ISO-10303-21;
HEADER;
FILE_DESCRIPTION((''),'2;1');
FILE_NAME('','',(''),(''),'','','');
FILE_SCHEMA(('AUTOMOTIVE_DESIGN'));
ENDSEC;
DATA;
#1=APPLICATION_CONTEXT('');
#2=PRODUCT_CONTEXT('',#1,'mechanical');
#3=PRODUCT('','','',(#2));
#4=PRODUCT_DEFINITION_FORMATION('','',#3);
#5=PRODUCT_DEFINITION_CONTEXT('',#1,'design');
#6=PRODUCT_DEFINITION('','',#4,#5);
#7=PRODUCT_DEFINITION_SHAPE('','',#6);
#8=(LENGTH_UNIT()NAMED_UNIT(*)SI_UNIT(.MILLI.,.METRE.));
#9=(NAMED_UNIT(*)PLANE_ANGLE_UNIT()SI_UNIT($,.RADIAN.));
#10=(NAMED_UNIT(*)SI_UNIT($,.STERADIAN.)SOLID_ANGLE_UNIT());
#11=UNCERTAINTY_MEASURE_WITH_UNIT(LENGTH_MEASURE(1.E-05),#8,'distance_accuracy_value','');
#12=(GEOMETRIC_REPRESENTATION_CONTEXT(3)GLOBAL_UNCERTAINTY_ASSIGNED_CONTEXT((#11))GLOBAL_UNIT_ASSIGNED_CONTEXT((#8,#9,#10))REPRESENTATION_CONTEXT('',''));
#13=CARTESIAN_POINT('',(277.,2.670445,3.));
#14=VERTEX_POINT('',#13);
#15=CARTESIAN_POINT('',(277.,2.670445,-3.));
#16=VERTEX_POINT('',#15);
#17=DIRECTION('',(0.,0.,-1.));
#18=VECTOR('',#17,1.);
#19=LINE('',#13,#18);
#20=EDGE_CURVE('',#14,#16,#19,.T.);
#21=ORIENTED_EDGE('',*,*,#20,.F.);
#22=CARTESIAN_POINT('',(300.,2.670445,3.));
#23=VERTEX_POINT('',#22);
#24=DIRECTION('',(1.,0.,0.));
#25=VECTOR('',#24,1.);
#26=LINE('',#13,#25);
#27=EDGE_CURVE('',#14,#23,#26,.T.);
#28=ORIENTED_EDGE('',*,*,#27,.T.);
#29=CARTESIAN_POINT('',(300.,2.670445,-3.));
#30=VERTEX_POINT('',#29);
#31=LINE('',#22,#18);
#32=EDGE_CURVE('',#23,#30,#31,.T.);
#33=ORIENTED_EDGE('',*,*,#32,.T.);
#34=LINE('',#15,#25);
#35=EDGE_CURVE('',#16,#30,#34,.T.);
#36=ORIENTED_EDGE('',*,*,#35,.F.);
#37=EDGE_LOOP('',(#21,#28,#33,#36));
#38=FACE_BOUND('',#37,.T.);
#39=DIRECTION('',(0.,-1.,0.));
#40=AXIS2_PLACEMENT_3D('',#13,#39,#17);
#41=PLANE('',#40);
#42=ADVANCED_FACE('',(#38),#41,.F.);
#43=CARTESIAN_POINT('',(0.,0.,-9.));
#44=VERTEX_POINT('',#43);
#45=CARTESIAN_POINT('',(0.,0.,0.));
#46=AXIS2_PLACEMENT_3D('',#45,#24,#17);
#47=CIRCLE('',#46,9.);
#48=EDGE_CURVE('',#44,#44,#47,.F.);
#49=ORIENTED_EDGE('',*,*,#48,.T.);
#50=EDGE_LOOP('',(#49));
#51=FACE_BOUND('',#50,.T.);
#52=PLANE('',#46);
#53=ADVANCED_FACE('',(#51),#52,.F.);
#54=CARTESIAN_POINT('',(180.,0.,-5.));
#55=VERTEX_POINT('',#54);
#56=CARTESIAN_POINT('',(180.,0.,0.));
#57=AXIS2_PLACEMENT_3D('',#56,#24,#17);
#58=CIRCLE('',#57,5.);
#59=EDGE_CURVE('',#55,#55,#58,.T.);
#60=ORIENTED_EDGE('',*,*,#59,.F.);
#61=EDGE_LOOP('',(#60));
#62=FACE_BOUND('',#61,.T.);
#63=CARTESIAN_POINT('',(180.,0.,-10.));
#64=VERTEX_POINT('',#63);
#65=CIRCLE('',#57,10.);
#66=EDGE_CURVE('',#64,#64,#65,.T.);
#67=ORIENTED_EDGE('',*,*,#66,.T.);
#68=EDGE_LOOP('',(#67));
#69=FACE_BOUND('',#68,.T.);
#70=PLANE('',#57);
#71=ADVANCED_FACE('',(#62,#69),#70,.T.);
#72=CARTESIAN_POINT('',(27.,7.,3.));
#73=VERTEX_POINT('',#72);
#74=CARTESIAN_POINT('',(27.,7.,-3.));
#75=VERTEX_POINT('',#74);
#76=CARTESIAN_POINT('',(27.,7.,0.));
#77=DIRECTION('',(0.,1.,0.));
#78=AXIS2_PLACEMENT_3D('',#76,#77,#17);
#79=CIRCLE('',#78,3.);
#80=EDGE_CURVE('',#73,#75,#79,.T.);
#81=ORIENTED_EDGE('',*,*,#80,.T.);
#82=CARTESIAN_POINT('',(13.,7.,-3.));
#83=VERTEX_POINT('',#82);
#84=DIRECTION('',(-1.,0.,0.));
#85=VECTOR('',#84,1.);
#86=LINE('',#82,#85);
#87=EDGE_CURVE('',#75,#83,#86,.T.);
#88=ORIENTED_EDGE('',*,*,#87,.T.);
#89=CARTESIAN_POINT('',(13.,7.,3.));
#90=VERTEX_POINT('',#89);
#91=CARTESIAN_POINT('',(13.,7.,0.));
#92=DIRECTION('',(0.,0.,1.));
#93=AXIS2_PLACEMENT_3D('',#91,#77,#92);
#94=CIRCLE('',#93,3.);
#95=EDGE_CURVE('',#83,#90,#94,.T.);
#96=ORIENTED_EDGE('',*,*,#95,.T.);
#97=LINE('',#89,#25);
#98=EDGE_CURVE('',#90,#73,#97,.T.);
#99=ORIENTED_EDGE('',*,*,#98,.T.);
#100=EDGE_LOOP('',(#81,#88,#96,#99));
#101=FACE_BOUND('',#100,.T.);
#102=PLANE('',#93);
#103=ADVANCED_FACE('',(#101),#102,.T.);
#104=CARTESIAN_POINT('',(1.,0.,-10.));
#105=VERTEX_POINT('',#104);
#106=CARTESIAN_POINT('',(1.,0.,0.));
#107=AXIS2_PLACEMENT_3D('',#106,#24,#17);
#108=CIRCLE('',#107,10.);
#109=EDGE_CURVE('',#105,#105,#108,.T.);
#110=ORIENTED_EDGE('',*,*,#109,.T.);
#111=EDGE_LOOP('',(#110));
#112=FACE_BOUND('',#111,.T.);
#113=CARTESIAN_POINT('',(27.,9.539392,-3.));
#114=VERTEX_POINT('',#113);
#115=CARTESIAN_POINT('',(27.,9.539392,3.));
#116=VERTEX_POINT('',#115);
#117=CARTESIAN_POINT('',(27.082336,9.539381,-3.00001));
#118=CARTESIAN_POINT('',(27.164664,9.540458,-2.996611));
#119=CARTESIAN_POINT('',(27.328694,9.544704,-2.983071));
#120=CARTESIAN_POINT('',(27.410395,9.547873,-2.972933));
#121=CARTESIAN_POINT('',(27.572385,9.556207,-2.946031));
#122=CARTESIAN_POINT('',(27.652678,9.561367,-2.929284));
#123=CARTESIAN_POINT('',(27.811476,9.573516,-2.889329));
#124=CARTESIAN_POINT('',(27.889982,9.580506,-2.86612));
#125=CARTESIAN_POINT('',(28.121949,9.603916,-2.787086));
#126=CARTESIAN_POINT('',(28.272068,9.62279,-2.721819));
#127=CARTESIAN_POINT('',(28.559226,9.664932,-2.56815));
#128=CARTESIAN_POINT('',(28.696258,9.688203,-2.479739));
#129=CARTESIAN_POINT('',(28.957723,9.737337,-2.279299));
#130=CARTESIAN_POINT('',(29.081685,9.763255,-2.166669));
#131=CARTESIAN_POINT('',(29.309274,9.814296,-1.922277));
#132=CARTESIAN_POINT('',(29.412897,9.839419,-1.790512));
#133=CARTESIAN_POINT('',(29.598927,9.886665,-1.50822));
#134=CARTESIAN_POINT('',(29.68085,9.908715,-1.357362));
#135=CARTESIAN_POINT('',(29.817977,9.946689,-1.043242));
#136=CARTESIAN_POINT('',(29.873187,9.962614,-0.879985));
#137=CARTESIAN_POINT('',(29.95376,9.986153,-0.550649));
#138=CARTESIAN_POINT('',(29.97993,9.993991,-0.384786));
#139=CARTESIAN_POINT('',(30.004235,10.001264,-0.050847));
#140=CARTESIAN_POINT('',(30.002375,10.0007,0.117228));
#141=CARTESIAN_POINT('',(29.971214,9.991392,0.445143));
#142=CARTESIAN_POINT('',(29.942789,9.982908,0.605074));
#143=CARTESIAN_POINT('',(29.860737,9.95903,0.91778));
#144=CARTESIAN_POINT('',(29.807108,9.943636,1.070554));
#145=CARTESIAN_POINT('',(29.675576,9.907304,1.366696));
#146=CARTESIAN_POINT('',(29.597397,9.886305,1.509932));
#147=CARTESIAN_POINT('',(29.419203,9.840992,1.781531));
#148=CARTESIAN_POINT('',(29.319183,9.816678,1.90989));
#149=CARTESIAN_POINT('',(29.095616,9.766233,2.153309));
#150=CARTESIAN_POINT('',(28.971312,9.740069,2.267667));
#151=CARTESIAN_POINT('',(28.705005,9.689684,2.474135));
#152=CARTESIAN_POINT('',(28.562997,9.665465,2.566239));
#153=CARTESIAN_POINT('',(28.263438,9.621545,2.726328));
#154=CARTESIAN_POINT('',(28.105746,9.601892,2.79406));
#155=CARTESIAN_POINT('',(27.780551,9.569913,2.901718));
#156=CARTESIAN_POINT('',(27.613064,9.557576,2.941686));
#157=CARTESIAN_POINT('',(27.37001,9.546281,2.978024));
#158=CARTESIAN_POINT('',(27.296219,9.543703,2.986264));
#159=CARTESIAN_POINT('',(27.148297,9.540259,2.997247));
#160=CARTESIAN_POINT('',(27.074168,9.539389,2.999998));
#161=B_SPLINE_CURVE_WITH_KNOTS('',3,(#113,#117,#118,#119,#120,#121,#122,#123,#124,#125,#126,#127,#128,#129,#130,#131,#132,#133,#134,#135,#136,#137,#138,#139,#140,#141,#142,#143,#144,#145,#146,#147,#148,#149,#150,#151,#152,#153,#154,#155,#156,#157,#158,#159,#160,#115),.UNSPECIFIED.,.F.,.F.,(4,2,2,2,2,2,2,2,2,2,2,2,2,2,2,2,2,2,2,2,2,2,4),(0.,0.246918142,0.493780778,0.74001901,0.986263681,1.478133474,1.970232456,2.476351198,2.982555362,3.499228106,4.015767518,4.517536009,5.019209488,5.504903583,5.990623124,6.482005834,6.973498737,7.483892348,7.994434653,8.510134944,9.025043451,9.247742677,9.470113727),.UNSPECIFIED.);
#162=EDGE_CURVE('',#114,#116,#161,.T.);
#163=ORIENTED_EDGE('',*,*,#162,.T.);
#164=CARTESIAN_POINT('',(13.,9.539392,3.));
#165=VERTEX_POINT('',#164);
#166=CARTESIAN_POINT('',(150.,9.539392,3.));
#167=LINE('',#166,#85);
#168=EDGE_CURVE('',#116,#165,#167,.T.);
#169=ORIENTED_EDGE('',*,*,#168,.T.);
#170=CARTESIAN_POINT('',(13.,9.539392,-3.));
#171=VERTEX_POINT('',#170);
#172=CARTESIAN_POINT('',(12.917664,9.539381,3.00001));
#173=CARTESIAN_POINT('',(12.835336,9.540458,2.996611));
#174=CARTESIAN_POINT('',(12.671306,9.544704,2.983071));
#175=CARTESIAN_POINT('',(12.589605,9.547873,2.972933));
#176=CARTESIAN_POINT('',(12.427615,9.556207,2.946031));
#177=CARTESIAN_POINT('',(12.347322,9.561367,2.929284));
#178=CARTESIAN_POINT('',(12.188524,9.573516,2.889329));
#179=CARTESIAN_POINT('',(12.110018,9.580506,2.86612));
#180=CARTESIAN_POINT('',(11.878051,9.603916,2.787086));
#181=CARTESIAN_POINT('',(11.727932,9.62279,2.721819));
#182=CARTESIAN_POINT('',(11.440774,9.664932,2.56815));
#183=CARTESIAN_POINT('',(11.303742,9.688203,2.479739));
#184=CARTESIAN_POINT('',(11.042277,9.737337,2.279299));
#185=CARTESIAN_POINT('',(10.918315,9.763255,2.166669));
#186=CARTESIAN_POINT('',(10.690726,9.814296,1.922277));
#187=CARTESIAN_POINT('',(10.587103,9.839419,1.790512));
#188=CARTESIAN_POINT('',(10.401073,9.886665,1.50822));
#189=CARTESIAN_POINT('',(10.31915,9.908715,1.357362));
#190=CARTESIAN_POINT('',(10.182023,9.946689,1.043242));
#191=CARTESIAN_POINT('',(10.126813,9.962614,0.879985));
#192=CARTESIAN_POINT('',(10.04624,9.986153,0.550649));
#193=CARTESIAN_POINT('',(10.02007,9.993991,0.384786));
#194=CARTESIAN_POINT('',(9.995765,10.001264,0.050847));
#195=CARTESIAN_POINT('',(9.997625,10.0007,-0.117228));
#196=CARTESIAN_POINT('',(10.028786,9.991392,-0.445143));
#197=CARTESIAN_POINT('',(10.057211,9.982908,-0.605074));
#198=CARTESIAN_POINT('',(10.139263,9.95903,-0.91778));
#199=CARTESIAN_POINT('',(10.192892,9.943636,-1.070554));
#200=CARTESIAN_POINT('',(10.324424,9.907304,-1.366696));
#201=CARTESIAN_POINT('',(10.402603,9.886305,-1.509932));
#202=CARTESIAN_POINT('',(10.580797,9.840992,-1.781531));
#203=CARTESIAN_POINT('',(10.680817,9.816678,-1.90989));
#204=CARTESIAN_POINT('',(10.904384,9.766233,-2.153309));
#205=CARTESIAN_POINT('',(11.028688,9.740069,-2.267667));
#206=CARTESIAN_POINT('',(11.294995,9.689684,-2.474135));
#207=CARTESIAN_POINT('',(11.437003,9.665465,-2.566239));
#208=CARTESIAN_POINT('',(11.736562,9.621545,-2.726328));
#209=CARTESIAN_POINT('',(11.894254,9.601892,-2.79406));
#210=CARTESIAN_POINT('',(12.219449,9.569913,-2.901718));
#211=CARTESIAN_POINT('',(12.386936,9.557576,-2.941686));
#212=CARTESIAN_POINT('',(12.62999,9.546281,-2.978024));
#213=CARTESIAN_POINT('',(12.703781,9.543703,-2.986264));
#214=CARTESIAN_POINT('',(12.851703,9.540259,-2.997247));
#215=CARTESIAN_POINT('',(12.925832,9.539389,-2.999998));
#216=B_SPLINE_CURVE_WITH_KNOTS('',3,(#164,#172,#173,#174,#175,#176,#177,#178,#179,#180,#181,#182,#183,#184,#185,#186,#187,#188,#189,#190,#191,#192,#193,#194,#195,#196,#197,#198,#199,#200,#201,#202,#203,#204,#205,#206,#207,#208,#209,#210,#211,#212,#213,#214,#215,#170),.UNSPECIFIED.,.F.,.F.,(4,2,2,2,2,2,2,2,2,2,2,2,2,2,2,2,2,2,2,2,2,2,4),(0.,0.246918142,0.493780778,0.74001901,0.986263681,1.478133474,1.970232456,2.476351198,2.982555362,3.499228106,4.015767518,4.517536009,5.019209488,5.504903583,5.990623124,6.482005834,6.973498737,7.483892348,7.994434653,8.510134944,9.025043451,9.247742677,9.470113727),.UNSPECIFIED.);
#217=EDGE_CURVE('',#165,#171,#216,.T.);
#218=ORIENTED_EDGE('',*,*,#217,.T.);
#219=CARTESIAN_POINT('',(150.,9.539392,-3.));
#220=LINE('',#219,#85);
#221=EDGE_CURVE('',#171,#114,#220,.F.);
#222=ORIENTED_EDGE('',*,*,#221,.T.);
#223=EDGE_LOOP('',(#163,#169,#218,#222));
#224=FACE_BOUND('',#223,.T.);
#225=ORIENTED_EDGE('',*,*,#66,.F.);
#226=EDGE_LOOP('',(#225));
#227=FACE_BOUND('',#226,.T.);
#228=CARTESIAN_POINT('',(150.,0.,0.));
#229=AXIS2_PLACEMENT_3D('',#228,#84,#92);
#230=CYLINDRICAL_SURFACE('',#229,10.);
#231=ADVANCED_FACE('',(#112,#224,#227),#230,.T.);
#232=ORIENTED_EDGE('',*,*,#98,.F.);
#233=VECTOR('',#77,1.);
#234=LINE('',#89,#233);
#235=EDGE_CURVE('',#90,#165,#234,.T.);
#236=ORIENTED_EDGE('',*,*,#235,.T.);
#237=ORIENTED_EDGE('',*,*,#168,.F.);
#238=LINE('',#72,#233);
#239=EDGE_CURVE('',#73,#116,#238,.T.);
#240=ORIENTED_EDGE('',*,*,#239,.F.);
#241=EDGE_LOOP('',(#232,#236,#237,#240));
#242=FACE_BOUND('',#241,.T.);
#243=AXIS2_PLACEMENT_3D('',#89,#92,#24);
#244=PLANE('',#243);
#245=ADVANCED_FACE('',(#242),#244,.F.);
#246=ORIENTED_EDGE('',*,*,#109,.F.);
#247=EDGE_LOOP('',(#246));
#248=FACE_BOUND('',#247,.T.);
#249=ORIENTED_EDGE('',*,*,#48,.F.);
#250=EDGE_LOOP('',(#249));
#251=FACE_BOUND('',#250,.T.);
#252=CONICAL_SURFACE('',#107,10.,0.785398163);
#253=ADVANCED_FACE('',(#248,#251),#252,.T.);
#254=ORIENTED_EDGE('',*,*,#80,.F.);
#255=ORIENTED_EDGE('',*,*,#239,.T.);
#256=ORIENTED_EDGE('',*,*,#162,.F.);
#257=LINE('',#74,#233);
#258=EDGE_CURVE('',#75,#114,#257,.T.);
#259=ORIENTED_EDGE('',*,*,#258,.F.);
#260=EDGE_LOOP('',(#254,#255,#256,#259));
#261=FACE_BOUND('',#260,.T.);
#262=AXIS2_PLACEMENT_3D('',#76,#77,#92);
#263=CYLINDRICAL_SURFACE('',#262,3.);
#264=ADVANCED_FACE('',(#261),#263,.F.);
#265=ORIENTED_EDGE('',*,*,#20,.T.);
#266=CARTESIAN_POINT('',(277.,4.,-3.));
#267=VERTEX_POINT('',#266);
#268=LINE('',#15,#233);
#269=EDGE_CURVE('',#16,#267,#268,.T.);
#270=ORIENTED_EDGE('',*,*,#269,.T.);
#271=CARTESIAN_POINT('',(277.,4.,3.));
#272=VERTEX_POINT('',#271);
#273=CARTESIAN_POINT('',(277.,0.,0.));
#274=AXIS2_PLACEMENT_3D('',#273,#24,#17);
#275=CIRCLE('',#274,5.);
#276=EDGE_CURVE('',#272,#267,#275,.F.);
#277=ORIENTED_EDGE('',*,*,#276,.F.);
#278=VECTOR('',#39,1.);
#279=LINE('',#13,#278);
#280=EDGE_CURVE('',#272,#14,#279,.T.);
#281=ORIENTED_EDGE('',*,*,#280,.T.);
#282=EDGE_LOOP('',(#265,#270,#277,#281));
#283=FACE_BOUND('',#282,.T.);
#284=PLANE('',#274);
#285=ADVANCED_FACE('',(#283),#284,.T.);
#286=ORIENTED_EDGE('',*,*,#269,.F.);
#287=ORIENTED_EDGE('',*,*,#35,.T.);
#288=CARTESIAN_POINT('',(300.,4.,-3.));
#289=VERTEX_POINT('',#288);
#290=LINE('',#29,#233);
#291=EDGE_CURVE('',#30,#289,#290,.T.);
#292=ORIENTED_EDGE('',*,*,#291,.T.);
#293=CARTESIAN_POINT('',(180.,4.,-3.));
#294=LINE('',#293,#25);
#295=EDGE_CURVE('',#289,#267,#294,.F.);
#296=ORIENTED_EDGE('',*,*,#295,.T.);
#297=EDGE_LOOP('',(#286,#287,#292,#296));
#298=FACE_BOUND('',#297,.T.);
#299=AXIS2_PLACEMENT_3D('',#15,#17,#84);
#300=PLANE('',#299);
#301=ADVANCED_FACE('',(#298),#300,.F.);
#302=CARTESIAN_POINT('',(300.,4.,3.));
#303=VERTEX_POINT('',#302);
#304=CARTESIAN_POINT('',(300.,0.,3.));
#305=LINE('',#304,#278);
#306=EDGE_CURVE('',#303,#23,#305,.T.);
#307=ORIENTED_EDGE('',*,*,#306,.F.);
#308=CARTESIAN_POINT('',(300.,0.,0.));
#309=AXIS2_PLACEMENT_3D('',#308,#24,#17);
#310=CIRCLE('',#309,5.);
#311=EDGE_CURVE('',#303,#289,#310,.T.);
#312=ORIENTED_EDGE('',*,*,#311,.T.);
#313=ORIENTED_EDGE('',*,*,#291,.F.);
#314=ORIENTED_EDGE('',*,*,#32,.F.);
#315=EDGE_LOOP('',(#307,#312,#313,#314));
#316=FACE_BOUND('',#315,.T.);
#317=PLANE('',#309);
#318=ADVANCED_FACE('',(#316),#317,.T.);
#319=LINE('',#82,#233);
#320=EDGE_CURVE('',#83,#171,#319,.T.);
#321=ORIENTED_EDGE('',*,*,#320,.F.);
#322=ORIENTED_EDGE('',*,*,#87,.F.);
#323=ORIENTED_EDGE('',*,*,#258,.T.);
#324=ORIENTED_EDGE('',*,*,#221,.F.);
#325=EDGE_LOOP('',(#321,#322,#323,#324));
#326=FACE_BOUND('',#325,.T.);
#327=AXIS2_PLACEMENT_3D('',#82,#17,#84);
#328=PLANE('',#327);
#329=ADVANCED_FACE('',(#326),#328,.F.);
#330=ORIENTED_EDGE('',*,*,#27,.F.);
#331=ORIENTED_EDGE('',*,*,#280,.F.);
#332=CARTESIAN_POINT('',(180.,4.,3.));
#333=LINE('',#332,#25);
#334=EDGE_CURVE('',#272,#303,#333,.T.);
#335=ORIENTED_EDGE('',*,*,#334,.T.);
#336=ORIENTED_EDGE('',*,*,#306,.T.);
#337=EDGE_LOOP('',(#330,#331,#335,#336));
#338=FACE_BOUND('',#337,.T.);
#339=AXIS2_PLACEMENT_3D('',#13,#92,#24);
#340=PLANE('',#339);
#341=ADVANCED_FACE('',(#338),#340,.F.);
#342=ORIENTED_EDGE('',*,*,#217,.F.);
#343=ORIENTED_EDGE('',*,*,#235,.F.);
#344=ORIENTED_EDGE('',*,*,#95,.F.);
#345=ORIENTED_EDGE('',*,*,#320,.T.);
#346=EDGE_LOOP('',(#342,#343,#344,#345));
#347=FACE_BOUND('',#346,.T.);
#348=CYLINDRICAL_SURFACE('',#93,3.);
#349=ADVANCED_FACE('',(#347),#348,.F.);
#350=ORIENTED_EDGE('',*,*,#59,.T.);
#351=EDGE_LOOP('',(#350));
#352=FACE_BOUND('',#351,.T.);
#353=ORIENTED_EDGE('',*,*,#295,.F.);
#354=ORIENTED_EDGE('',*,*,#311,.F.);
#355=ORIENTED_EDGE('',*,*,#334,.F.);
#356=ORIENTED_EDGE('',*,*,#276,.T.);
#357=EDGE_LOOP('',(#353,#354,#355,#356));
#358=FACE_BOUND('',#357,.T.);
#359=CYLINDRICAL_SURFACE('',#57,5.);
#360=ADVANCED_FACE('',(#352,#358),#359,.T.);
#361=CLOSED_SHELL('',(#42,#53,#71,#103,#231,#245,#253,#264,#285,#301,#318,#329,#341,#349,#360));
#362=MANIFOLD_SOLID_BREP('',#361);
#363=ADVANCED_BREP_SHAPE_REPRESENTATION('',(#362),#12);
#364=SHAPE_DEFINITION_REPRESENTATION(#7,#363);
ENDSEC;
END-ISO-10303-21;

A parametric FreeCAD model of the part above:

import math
import FreeCAD as App
import Part
import Sketcher
Q = App.Units.Quantity


def edges_at(feature, points):
    """Names of the edges that pass closest to the given points."""
    edges = feature.Shape.Edges
    near = lambda p: min(range(len(edges)), key=lambda i: edges[i].distToShape(Part.Vertex(*p))[0])
    return sorted({f"Edge{near(p) + 1}" for p in points})

doc = App.newDocument("Part")
body = doc.addObject("PartDesign::Body", "Body")

# Sketch on YZ plane
sketch1 = body.newObject("Sketcher::SketchObject", "Sketch")
sketch1.AttachmentSupport = (doc.getObject("YZ_Plane"), [""])
sketch1.MapMode = "FlatFace"
sketch1.addGeometry(Part.Circle(App.Vector(0, 0, 0), App.Vector(0, 0, 1), 10), False)
sketch1.addConstraint([
    Sketcher.Constraint("Coincident", 0, 3, -1, 1),
    Sketcher.Constraint("Diameter", 0, Q("20 mm")),
])
pad1 = body.newObject("PartDesign::Pad", "Pad")
pad1.Profile = sketch1
pad1.Length = 150

# Sketch on XZ plane
sketch2 = body.newObject("Sketcher::SketchObject", "Sketch001")
sketch2.AttachmentSupport = (doc.getObject("XZ_Plane"), [""])
sketch2.MapMode = "FlatFace"
sketch2.AttachmentOffset = App.Placement(App.Vector(0, 0, -10), App.Rotation())
sketch2.addGeometry([
    Part.LineSegment(App.Vector(27, -3, 0), App.Vector(13, -3, 0)),
    Part.ArcOfCircle(Part.Circle(App.Vector(13, 0, 0), App.Vector(0, 0, 1), 3), math.radians(90), math.radians(270)),
    Part.LineSegment(App.Vector(13, 3, 0), App.Vector(27, 3, 0)),
    Part.ArcOfCircle(Part.Circle(App.Vector(27, 0, 0), App.Vector(0, 0, 1), 3), math.radians(-90), math.radians(90)),
], False)
sketch2.addConstraint([
    Sketcher.Constraint("Tangent", 0, 2, 1, 2),
    Sketcher.Constraint("Tangent", 1, 1, 2, 1),
    Sketcher.Constraint("Tangent", 2, 2, 3, 2),
    Sketcher.Constraint("Tangent", 3, 1, 0, 1),
    Sketcher.Constraint("Horizontal", 0),
    Sketcher.Constraint("Horizontal", 2),
    Sketcher.Constraint("PointOnObject", 1, 3, -1),
    Sketcher.Constraint("Radius", 1, Q("3 mm")),
    Sketcher.Constraint("DistanceX", 0, 2, 0, 1, Q("14 mm")),
    Sketcher.Constraint("DistanceX", -1, 1, 1, 3, Q("13 mm")),
])
pocket1 = body.newObject("PartDesign::Pocket", "Pocket")
pocket1.Profile = sketch2
pocket1.Length = 3
pocket1.Reversed = True
doc.recompute()

chamfer = body.newObject("PartDesign::Chamfer", "Chamfer")
chamfer.Base = (pocket1, edges_at(pocket1, [(0, 0, 10)]))
chamfer.Size = 1

# Sketch on YZ plane
sketch3 = body.newObject("Sketcher::SketchObject", "Sketch002")
sketch3.AttachmentSupport = (doc.getObject("YZ_Plane"), [""])
sketch3.MapMode = "FlatFace"
sketch3.AttachmentOffset = App.Placement(App.Vector(0, 0, 150), App.Rotation())
sketch3.addGeometry(Part.Circle(App.Vector(0, 0, 0), App.Vector(0, 0, 1), 10), False)
sketch3.addConstraint([
    Sketcher.Constraint("Coincident", 0, 3, -1, 1),
    Sketcher.Constraint("Diameter", 0, Q("20 mm")),
])
pad2 = body.newObject("PartDesign::Pad", "Pad001")
pad2.Profile = sketch3
pad2.Length = 150

# Sketch on XZ plane
sketch4 = body.newObject("Sketcher::SketchObject", "Sketch003")
sketch4.AttachmentSupport = (doc.getObject("XZ_Plane"), [""])
sketch4.MapMode = "FlatFace"
sketch4.AttachmentOffset = App.Placement(App.Vector(0, 0, -10), App.Rotation())
sketch4.addGeometry([
    Part.LineSegment(App.Vector(287, -3, 0), App.Vector(273, -3, 0)),
    Part.ArcOfCircle(Part.Circle(App.Vector(273, 0, 0), App.Vector(0, 0, 1), 3), math.radians(90), math.radians(270)),
    Part.LineSegment(App.Vector(273, 3, 0), App.Vector(287, 3, 0)),
    Part.ArcOfCircle(Part.Circle(App.Vector(287, 0, 0), App.Vector(0, 0, 1), 3), math.radians(-90), math.radians(90)),
], False)
sketch4.addConstraint([
    Sketcher.Constraint("Tangent", 0, 2, 1, 2),
    Sketcher.Constraint("Tangent", 1, 1, 2, 1),
    Sketcher.Constraint("Tangent", 2, 2, 3, 2),
    Sketcher.Constraint("Tangent", 3, 1, 0, 1),
    Sketcher.Constraint("Horizontal", 0),
    Sketcher.Constraint("Horizontal", 2),
    Sketcher.Constraint("PointOnObject", 1, 3, -1),
    Sketcher.Constraint("Radius", 1, Q("3 mm")),
    Sketcher.Constraint("DistanceX", 0, 2, 0, 1, Q("14 mm")),
    Sketcher.Constraint("DistanceX", -1, 1, 1, 3, Q("273 mm")),
])
pocket2 = body.newObject("PartDesign::Pocket", "Pocket001")
pocket2.Profile = sketch4
pocket2.Length = 3
pocket2.Reversed = True
doc.recompute()

chamfer2 = body.newObject("PartDesign::Chamfer", "Chamfer001")
chamfer2.Base = (pocket2, edges_at(pocket2, [(300, 0, 10)]))
chamfer2.Size = 1

# Sketch on YZ plane
sketch5 = body.newObject("Sketcher::SketchObject", "Sketch004")
sketch5.AttachmentSupport = (doc.getObject("YZ_Plane"), [""])
sketch5.MapMode = "FlatFace"
sketch5.AttachmentOffset = App.Placement(App.Vector(0, 0, 180), App.Rotation())
sketch5.addGeometry([
    Part.Circle(App.Vector(0, 0, 0), App.Vector(0, 0, 1), 10),
    Part.Circle(App.Vector(0, 0, 0), App.Vector(0, 0, 1), 5),
], False)
sketch5.addConstraint([
    Sketcher.Constraint("Coincident", 0, 3, -1, 1),
    Sketcher.Constraint("Coincident", 1, 3, -1, 1),
    Sketcher.Constraint("Diameter", 0, Q("20 mm")),
    Sketcher.Constraint("Diameter", 1, Q("10 mm")),
])
pocket3 = body.newObject("PartDesign::Pocket", "Pocket002")
pocket3.Profile = sketch5
pocket3.Length = 120
pocket3.Reversed = True

# Sketch on YZ plane
sketch6 = body.newObject("Sketcher::SketchObject", "Sketch005")
sketch6.AttachmentSupport = (doc.getObject("YZ_Plane"), [""])
sketch6.MapMode = "FlatFace"
sketch6.AttachmentOffset = App.Placement(App.Vector(0, 0, 300), App.Rotation())
sketch6.addGeometry([
    Part.LineSegment(App.Vector(6.7, 3, 0), App.Vector(2.7, 3, 0)),
    Part.LineSegment(App.Vector(2.7, 3, 0), App.Vector(2.7, -3, 0)),
    Part.LineSegment(App.Vector(2.7, -3, 0), App.Vector(6.7, -3, 0)),
    Part.LineSegment(App.Vector(6.7, -3, 0), App.Vector(6.7, 3, 0)),
], False)
sketch6.addConstraint([
    Sketcher.Constraint("Coincident", 0, 2, 1, 1),
    Sketcher.Constraint("Coincident", 1, 2, 2, 1),
    Sketcher.Constraint("Coincident", 2, 2, 3, 1),
    Sketcher.Constraint("Coincident", 3, 2, 0, 1),
    Sketcher.Constraint("Horizontal", 0),
    Sketcher.Constraint("Vertical", 1),
    Sketcher.Constraint("Horizontal", 2),
    Sketcher.Constraint("Vertical", 3),
    Sketcher.Constraint("DistanceY", 1, 2, 1, 1, Q("6 mm")),
    Sketcher.Constraint("DistanceY", -1, 1, 0, 2, Q("3 mm")),
    Sketcher.Constraint("DistanceX", 0, 2, 0, 1, Q("4.07801 mm")),
    Sketcher.Constraint("DistanceX", -1, 1, 0, 2, Q("2.670445 mm")),
])
pocket4 = body.newObject("PartDesign::Pocket", "Pocket003")
pocket4.Profile = sketch6
pocket4.Length = 23

doc.recompute()
